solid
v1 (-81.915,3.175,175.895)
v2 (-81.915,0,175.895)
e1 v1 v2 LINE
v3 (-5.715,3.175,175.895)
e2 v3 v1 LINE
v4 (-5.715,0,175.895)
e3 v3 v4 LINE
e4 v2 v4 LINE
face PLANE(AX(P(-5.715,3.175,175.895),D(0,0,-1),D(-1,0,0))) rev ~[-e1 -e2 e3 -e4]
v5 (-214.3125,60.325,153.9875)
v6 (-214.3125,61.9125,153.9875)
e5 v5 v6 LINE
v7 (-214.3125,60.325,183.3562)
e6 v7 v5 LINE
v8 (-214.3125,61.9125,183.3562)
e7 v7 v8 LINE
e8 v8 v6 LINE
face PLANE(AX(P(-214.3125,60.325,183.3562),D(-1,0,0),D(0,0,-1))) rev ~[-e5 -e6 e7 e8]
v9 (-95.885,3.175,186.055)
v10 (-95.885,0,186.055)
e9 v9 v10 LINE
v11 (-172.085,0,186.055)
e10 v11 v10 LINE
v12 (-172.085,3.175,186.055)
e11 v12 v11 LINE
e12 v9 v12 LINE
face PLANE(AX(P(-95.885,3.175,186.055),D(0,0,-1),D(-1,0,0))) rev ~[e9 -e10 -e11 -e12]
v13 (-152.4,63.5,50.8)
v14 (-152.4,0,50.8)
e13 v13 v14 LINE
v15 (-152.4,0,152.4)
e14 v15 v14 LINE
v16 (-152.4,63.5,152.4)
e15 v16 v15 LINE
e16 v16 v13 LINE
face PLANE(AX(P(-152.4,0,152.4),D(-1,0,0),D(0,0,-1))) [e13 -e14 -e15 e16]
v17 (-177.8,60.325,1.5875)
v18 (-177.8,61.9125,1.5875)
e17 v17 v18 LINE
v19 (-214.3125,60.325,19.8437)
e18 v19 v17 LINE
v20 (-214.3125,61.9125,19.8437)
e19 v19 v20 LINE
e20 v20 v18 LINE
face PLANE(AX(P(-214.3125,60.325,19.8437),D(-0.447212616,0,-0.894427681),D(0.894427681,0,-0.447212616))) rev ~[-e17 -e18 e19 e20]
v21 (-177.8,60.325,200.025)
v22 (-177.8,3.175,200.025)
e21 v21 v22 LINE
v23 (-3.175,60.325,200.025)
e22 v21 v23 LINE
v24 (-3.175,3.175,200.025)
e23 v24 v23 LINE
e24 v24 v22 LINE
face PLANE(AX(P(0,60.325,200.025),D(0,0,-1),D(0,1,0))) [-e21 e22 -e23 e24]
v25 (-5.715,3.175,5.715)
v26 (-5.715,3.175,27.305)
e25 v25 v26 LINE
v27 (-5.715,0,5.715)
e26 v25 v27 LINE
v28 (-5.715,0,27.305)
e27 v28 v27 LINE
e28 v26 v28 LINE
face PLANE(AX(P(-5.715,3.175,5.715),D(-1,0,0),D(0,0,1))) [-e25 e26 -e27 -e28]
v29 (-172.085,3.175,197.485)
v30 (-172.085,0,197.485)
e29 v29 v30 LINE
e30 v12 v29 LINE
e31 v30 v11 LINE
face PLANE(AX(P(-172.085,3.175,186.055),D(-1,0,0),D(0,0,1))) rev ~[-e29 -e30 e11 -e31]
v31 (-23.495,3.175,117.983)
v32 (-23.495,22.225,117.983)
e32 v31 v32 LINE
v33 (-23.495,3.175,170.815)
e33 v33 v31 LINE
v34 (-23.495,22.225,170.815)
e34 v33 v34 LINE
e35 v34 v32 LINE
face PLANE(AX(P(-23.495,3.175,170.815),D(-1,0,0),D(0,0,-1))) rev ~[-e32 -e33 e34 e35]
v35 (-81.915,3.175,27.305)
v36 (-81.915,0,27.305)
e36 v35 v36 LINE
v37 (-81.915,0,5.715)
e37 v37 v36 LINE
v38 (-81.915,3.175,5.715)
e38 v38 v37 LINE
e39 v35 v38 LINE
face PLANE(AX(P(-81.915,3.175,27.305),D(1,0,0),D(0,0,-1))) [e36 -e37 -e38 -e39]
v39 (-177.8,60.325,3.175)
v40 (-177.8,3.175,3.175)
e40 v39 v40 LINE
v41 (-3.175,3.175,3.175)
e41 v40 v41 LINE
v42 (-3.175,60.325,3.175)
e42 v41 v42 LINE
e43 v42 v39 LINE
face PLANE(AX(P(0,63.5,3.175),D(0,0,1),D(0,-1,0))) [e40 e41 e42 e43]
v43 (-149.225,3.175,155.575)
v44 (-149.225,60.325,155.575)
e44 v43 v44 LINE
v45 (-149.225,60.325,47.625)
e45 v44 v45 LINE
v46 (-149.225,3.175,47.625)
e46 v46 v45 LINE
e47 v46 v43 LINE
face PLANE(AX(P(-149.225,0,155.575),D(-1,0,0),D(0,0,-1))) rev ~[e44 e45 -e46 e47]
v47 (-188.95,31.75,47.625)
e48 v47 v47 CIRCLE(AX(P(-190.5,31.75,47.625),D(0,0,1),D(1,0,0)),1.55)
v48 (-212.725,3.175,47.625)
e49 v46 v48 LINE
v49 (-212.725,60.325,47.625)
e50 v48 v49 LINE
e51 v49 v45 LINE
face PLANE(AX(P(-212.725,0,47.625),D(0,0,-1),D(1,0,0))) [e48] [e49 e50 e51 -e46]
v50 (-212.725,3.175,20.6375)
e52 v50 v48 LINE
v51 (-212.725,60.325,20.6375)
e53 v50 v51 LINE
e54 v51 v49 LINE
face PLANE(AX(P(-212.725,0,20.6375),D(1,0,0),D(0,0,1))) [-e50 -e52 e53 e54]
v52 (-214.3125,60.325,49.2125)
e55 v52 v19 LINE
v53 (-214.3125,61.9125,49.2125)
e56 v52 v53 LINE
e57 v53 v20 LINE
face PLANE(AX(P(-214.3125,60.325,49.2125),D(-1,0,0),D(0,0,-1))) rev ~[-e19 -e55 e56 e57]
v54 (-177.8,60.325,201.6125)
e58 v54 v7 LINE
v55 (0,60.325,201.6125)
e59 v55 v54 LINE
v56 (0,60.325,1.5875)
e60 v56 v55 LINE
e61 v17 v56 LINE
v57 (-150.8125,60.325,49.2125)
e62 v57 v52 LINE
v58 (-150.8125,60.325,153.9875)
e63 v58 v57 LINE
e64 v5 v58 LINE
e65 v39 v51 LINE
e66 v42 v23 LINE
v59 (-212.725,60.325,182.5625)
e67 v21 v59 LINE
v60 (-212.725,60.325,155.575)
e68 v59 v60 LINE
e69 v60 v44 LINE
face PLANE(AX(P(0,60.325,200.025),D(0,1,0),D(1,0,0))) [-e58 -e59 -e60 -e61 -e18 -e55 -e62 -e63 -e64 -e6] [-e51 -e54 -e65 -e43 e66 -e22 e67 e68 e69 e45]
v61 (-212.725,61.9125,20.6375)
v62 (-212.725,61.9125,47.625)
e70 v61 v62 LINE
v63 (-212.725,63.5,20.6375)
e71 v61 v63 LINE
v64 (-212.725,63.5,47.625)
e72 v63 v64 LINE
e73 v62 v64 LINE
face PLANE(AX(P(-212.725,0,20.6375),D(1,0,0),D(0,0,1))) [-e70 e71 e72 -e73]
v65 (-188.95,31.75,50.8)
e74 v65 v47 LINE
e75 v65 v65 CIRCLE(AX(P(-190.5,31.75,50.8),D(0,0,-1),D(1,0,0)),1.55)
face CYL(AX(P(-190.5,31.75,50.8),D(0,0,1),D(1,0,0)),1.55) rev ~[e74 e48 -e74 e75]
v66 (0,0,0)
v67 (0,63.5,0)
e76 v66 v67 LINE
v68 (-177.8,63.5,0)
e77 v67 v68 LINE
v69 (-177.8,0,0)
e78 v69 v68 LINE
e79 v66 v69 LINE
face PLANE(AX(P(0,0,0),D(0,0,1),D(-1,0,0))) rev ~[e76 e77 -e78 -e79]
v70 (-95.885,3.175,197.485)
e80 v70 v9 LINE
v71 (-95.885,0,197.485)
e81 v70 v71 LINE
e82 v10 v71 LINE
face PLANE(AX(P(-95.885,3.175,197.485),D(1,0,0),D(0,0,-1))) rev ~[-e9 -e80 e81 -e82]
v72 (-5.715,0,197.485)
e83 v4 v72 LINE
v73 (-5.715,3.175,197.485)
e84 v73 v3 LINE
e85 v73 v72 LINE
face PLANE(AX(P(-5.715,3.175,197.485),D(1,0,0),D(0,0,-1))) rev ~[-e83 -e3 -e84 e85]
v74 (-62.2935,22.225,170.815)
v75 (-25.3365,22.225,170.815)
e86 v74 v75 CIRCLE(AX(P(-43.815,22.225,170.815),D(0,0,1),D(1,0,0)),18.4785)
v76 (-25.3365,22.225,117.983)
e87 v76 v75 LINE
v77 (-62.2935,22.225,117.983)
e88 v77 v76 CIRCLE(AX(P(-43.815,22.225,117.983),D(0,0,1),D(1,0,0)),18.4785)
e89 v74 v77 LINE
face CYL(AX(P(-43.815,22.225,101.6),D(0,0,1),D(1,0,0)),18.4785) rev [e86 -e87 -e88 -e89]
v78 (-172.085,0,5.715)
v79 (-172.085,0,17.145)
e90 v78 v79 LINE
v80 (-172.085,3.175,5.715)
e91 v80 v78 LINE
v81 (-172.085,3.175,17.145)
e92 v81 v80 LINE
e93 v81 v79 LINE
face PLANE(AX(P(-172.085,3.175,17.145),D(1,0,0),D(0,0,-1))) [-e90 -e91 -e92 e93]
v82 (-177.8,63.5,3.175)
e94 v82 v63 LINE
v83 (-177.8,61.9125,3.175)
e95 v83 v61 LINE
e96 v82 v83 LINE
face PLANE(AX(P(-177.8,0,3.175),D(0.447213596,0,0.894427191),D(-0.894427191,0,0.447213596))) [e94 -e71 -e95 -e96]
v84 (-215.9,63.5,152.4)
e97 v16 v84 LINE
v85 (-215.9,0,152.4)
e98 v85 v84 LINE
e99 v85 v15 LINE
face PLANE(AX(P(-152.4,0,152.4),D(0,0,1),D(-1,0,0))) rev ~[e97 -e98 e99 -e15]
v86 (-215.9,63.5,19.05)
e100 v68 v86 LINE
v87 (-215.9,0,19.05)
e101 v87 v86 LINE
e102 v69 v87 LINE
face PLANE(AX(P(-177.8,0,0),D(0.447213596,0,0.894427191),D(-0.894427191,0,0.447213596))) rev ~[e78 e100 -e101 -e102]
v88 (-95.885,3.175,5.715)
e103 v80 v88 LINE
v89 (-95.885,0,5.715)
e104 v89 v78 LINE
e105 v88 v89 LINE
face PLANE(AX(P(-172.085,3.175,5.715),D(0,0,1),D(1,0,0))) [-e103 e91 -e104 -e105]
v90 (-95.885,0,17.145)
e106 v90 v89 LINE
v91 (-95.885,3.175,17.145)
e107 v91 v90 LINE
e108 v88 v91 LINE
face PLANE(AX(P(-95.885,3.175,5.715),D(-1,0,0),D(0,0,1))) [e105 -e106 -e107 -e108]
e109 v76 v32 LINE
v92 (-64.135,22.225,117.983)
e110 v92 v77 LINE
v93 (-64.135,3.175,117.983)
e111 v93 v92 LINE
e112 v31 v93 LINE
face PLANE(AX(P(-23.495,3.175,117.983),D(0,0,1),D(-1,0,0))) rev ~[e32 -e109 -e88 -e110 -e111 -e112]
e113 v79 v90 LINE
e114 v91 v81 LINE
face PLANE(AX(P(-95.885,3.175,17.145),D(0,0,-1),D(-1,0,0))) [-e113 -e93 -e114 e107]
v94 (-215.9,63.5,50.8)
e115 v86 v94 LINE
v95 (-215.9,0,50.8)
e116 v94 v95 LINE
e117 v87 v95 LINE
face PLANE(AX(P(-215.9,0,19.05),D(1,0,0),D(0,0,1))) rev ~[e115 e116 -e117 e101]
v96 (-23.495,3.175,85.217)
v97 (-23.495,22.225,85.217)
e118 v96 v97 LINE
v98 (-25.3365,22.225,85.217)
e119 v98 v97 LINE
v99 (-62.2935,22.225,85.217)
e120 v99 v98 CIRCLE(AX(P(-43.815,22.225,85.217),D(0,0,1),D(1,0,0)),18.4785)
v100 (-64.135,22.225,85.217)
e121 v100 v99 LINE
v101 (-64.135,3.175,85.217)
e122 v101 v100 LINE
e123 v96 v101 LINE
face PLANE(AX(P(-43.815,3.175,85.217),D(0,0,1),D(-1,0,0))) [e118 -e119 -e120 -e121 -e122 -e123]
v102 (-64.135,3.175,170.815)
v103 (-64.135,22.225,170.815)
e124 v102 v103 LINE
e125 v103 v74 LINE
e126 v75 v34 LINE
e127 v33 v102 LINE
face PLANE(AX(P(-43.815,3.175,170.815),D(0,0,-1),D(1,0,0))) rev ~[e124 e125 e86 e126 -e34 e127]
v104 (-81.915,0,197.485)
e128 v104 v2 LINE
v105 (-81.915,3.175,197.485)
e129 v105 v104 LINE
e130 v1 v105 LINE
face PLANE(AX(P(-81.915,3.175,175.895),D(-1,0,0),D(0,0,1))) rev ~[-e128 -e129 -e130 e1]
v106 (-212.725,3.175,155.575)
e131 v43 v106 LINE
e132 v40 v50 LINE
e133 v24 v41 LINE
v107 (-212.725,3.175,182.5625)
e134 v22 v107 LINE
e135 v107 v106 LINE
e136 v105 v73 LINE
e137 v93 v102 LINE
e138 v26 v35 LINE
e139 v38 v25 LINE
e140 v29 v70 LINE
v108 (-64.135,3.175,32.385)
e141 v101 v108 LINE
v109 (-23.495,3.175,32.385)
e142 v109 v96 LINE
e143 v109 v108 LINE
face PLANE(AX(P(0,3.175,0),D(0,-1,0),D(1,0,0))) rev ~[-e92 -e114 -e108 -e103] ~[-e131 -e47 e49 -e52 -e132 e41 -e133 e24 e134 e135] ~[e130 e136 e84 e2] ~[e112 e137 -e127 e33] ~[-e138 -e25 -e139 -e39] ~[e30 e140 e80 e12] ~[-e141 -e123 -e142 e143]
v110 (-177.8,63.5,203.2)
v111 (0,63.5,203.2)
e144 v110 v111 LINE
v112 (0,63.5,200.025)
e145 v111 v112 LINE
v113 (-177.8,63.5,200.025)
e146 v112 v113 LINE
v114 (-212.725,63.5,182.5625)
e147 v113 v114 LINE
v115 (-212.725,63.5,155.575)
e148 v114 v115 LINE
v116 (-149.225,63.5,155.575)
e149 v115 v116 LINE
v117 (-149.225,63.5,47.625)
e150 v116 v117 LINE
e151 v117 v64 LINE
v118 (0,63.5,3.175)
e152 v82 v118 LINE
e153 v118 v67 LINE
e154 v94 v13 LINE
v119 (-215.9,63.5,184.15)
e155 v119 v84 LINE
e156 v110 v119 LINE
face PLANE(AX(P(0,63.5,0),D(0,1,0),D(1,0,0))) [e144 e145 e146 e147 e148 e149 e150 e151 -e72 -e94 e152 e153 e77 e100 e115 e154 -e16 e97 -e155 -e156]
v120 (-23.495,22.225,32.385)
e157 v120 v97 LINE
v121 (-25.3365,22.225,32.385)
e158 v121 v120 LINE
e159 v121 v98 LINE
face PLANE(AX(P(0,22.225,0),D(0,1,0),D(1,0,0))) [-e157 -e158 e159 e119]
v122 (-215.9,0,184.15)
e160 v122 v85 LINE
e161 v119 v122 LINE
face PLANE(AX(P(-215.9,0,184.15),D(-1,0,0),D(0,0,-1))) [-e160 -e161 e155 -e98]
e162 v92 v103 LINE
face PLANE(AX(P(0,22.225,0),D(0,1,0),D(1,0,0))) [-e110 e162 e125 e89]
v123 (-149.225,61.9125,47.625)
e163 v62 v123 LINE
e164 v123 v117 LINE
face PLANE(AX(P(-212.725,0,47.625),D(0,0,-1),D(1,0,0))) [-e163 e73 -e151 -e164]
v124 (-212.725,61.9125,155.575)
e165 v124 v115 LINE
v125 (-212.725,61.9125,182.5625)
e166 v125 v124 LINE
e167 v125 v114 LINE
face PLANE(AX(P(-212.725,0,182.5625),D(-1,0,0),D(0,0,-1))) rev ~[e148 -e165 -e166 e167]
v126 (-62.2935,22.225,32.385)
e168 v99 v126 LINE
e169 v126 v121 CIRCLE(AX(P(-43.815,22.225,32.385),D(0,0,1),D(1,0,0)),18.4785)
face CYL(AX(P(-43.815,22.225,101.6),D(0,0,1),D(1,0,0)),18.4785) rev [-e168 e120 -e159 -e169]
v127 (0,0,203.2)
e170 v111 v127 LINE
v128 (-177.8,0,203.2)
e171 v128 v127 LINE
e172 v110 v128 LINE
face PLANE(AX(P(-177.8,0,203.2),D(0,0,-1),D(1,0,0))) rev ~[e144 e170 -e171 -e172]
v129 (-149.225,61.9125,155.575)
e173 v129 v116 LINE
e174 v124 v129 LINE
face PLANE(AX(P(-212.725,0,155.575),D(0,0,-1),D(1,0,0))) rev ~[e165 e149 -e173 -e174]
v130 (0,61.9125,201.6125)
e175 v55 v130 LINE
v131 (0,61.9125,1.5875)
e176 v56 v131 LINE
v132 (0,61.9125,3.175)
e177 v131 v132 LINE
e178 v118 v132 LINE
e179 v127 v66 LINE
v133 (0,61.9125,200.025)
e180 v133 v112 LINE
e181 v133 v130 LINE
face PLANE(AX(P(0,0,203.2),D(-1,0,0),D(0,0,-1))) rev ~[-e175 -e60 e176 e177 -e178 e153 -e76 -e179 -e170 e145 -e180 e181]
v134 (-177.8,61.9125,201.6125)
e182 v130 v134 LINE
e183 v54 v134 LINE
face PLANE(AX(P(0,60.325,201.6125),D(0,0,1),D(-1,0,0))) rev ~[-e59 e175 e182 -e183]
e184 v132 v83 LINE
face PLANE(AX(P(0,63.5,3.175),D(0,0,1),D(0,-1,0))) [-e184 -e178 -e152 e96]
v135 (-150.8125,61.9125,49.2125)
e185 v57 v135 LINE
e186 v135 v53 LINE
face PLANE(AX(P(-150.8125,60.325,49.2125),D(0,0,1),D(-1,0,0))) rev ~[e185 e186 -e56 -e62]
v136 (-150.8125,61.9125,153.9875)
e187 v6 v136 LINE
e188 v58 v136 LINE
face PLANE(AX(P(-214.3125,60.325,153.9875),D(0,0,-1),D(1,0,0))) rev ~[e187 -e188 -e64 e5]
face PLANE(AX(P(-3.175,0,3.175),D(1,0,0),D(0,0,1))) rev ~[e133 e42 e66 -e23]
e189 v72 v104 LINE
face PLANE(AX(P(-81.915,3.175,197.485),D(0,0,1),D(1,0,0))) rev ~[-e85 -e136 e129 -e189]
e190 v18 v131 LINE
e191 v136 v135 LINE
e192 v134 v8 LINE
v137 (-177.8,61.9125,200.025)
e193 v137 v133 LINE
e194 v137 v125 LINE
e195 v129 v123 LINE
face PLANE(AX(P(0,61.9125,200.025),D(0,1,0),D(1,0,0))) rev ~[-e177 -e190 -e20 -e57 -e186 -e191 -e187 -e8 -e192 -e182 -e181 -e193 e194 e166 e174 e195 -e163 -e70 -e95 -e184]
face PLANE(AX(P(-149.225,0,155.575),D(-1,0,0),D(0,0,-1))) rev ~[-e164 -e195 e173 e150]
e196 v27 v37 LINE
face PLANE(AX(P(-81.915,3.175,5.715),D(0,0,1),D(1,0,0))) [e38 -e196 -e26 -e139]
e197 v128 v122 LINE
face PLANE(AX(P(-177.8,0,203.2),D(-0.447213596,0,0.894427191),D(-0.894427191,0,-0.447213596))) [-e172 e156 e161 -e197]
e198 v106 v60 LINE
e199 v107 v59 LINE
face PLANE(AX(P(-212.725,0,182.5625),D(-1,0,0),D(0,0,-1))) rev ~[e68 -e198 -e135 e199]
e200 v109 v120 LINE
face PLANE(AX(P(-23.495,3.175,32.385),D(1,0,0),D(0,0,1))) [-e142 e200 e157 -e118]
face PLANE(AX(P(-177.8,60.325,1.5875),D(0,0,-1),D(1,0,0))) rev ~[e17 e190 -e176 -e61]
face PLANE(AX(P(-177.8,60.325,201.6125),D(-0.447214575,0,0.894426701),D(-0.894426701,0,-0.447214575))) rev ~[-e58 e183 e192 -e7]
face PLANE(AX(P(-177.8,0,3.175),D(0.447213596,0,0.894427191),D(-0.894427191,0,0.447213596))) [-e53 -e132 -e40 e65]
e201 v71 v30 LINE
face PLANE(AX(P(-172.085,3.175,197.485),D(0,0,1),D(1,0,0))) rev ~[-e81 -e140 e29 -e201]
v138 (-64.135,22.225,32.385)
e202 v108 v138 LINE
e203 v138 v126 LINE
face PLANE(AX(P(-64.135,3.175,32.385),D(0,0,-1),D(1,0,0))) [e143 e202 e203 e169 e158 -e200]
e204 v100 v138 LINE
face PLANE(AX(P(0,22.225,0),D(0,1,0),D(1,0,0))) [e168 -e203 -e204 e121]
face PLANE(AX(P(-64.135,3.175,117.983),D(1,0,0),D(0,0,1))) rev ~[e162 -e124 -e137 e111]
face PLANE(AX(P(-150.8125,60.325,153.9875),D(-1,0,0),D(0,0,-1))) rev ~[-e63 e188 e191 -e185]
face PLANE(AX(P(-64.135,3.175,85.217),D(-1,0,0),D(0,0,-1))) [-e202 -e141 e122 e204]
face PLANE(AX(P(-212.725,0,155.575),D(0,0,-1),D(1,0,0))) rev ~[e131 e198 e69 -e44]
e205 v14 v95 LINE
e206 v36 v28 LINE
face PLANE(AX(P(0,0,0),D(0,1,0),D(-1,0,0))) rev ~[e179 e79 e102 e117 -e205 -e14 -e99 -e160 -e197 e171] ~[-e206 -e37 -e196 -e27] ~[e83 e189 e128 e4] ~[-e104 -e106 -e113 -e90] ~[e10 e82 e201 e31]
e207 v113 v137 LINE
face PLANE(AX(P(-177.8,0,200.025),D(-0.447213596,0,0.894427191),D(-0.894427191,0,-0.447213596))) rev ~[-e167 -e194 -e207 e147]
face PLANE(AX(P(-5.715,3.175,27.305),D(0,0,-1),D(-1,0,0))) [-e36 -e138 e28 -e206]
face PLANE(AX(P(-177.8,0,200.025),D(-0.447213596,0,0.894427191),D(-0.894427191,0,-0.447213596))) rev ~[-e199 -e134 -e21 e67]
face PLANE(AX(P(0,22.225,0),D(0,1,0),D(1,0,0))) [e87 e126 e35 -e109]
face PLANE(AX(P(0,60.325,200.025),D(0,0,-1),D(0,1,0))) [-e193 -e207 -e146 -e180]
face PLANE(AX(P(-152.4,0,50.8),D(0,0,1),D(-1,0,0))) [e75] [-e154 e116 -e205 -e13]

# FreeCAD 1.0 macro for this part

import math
import FreeCAD as App
import Part
import Sketcher
from FreeCAD import Vector
Q = App.Units.Quantity

doc = App.newDocument("Part")
body = doc.addObject("PartDesign::Body", "Body")

sketch1 = body.newObject("Sketcher::SketchObject", "Sketch")
sketch1.AttachmentSupport = (doc.getObject("XZ_Plane"), [""])
sketch1.MapMode = "FlatFace"
sketch1.addGeometry(Part.LineSegment(Vector(0, 203.2, 0), Vector(0, 0, 0)), False)
sketch1.addGeometry(Part.LineSegment(Vector(0, 0, 0), Vector(-177.8, 0, 0)), False)
sketch1.addGeometry(Part.LineSegment(Vector(-177.8, 0, 0), Vector(-177.8, 203.2, 0)), False)
sketch1.addGeometry(Part.LineSegment(Vector(-177.8, 203.2, 0), Vector(0, 203.2, 0)), False)
sketch1.addConstraint(Sketcher.Constraint("Coincident", 0, 2, 1, 1))
sketch1.addConstraint(Sketcher.Constraint("Coincident", 1, 2, 2, 1))
sketch1.addConstraint(Sketcher.Constraint("Coincident", 2, 2, 3, 1))
sketch1.addConstraint(Sketcher.Constraint("Coincident", 3, 2, 0, 1))
sketch1.addConstraint(Sketcher.Constraint("Vertical", 0))
sketch1.addConstraint(Sketcher.Constraint("Horizontal", 1))
sketch1.addConstraint(Sketcher.Constraint("Vertical", 2))
sketch1.addConstraint(Sketcher.Constraint("Horizontal", 3))
sketch1.addConstraint(Sketcher.Constraint("Coincident", 0, 2, -1, 1))
sketch1.addConstraint(Sketcher.Constraint("DistanceX", 1, 2, 1, 1, Q("7 in")))
sketch1.addConstraint(Sketcher.Constraint("DistanceY", 0, 2, 0, 1, Q("8 in")))
pad1 = body.newObject("PartDesign::Pad", "Pad")
pad1.Profile = sketch1
pad1.Length = Q("0.125 in")
pad1.Reversed = True

sketch2 = body.newObject("Sketcher::SketchObject", "Sketch001")
sketch2.AttachmentSupport = (doc.getObject("XZ_Plane"), [""])
sketch2.MapMode = "FlatFace"
sketch2.addGeometry(Part.LineSegment(Vector(0, 0, 0), Vector(-177.8, 0, 0)), False)
sketch2.addGeometry(Part.LineSegment(Vector(-177.8, 0, 0), Vector(-177.8, 50.8, 0)), False)
sketch2.addGeometry(Part.LineSegment(Vector(-177.8, 50.8, 0), Vector(-152.4, 50.8, 0)), False)
sketch2.addGeometry(Part.LineSegment(Vector(-152.4, 50.8, 0), Vector(-152.4, 152.4, 0)), False)
sketch2.addGeometry(Part.LineSegment(Vector(-152.4, 152.4, 0), Vector(-177.8, 152.4, 0)), False)
sketch2.addGeometry(Part.LineSegment(Vector(-177.8, 152.4, 0), Vector(-177.8, 203.2, 0)), False)
sketch2.addGeometry(Part.LineSegment(Vector(-177.8, 203.2, 0), Vector(0, 203.2, 0)), False)
sketch2.addGeometry(Part.LineSegment(Vector(0, 203.2, 0), Vector(0, 0, 0)), False)
sketch2.addGeometry(Part.LineSegment(Vector(-174.625, 47.625, 0), Vector(-174.625, 3.175, 0)), False)
sketch2.addGeometry(Part.LineSegment(Vector(-174.625, 3.175, 0), Vector(-3.175, 3.175, 0)), False)
sketch2.addGeometry(Part.LineSegment(Vector(-3.175, 3.175, 0), Vector(-3.175, 200.025, 0)), False)
sketch2.addGeometry(Part.LineSegment(Vector(-3.175, 200.025, 0), Vector(-174.625, 200.025, 0)), False)
sketch2.addGeometry(Part.LineSegment(Vector(-174.625, 200.025, 0), Vector(-174.625, 155.575, 0)), False)
sketch2.addGeometry(Part.LineSegment(Vector(-174.625, 155.575, 0), Vector(-149.225, 155.575, 0)), False)
sketch2.addGeometry(Part.LineSegment(Vector(-149.225, 155.575, 0), Vector(-149.225, 47.625, 0)), False)
sketch2.addGeometry(Part.LineSegment(Vector(-149.225, 47.625, 0), Vector(-174.625, 47.625, 0)), False)
sketch2.addConstraint(Sketcher.Constraint("Coincident", 0, 2, 1, 1))
sketch2.addConstraint(Sketcher.Constraint("Coincident", 1, 2, 2, 1))
sketch2.addConstraint(Sketcher.Constraint("Coincident", 2, 2, 3, 1))
sketch2.addConstraint(Sketcher.Constraint("Coincident", 3, 2, 4, 1))
sketch2.addConstraint(Sketcher.Constraint("Coincident", 4, 2, 5, 1))
sketch2.addConstraint(Sketcher.Constraint("Coincident", 5, 2, 6, 1))
sketch2.addConstraint(Sketcher.Constraint("Coincident", 6, 2, 7, 1))
sketch2.addConstraint(Sketcher.Constraint("Coincident", 7, 2, 0, 1))
sketch2.addConstraint(Sketcher.Constraint("Coincident", 8, 2, 9, 1))
sketch2.addConstraint(Sketcher.Constraint("Coincident", 9, 2, 10, 1))
sketch2.addConstraint(Sketcher.Constraint("Coincident", 10, 2, 11, 1))
sketch2.addConstraint(Sketcher.Constraint("Coincident", 11, 2, 12, 1))
sketch2.addConstraint(Sketcher.Constraint("Coincident", 12, 2, 13, 1))
sketch2.addConstraint(Sketcher.Constraint("Coincident", 13, 2, 14, 1))
sketch2.addConstraint(Sketcher.Constraint("Coincident", 14, 2, 15, 1))
sketch2.addConstraint(Sketcher.Constraint("Coincident", 15, 2, 8, 1))
sketch2.addConstraint(Sketcher.Constraint("Horizontal", 0))
sketch2.addConstraint(Sketcher.Constraint("Vertical", 1))
sketch2.addConstraint(Sketcher.Constraint("Horizontal", 2))
sketch2.addConstraint(Sketcher.Constraint("Vertical", 3))
sketch2.addConstraint(Sketcher.Constraint("Horizontal", 4))
sketch2.addConstraint(Sketcher.Constraint("Vertical", 5))
sketch2.addConstraint(Sketcher.Constraint("Horizontal", 6))
sketch2.addConstraint(Sketcher.Constraint("Vertical", 7))
sketch2.addConstraint(Sketcher.Constraint("Vertical", 8))
sketch2.addConstraint(Sketcher.Constraint("Horizontal", 9))
sketch2.addConstraint(Sketcher.Constraint("Vertical", 10))
sketch2.addConstraint(Sketcher.Constraint("Horizontal", 11))
sketch2.addConstraint(Sketcher.Constraint("Vertical", 12))
sketch2.addConstraint(Sketcher.Constraint("Horizontal", 13))
sketch2.addConstraint(Sketcher.Constraint("Vertical", 14))
sketch2.addConstraint(Sketcher.Constraint("Horizontal", 15))
sketch2.addConstraint(Sketcher.Constraint("Coincident", 7, 2, -1, 1))
sketch2.addConstraint(Sketcher.Constraint("Vertical", 1, 2, 4, 2))
sketch2.addConstraint(Sketcher.Constraint("Vertical", 8, 2, 11, 2))
sketch2.addConstraint(Sketcher.Constraint("Equal", 4, 13))
sketch2.addConstraint(Sketcher.Constraint("Equal", 1, 5))
sketch2.addConstraint(Sketcher.Constraint("Equal", 8, 12))
sketch2.addConstraint(Sketcher.Constraint("DistanceX", 2, 1, 2, 2, Q("1 in")))
sketch2.addConstraint(Sketcher.Constraint("DistanceY", 3, 1, 3, 2, Q("4 in")))
sketch2.addConstraint(Sketcher.Constraint("DistanceX", 0, 2, 0, 1, Q("7 in")))
sketch2.addConstraint(Sketcher.Constraint("DistanceY", 1, 1, 1, 2, Q("2 in")))
sketch2.addConstraint(Sketcher.Constraint("DistanceY", -1, 1, 8, 2, Q("0.125 in")))
sketch2.addConstraint(Sketcher.Constraint("DistanceX", 9, 2, -1, 1, Q("0.125 in")))
sketch2.addConstraint(Sketcher.Constraint("DistanceX", 0, 2, 8, 2, Q("0.125 in")))
sketch2.addConstraint(Sketcher.Constraint("DistanceY", 10, 2, 6, 2, Q("0.125 in")))
sketch2.addConstraint(Sketcher.Constraint("DistanceY", 4, 2, 12, 2, Q("0.125 in")))
pad2 = body.newObject("PartDesign::Pad", "Pad001")
pad2.Profile = sketch2
pad2.Length = Q("2.5 in")
pad2.Reversed = True

sketch3 = body.newObject("Sketcher::SketchObject", "Sketch002")
sketch3.AttachmentSupport = (doc.getObject("XZ_Plane"), [""])
sketch3.MapMode = "FlatFace"
sketch3.AttachmentOffset = App.Placement(Vector(0, 0, -0.125 * 25.4), App.Rotation())
sketch3.addGeometry(Part.LineSegment(Vector(-152.4, 50.8, 0), Vector(-177.8, 50.8, 0)), False)
sketch3.addGeometry(Part.LineSegment(Vector(-177.8, 50.8, 0), Vector(-177.8, 152.4, 0)), False)
sketch3.addGeometry(Part.LineSegment(Vector(-177.8, 152.4, 0), Vector(-152.4, 152.4, 0)), False)
sketch3.addGeometry(Part.LineSegment(Vector(-152.4, 152.4, 0), Vector(-152.4, 50.8, 0)), False)
sketch3.addConstraint(Sketcher.Constraint("Coincident", 0, 2, 1, 1))
sketch3.addConstraint(Sketcher.Constraint("Coincident", 1, 2, 2, 1))
sketch3.addConstraint(Sketcher.Constraint("Coincident", 2, 2, 3, 1))
sketch3.addConstraint(Sketcher.Constraint("Coincident", 3, 2, 0, 1))
sketch3.addConstraint(Sketcher.Constraint("Horizontal", 0))
sketch3.addConstraint(Sketcher.Constraint("Vertical", 1))
sketch3.addConstraint(Sketcher.Constraint("Horizontal", 2))
sketch3.addConstraint(Sketcher.Constraint("Vertical", 3))
sketch3.addConstraint(Sketcher.Constraint("DistanceX", 0, 2, 0, 1, Q("1 in")))
sketch3.addConstraint(Sketcher.Constraint("DistanceY", 1, 1, 1, 2, Q("4 in")))
sketch3.addConstraint(Sketcher.Constraint("DistanceX", 0, 2, -1, 1, Q("7 in")))
sketch3.addConstraint(Sketcher.Constraint("DistanceY", -1, 1, 0, 2, Q("2 in")))
pocket1 = body.newObject("PartDesign::Pocket", "Pocket")
pocket1.Profile = sketch3
pocket1.Type = "ThroughAll"
pocket1.Reversed = True

sketch4 = body.newObject("Sketcher::SketchObject", "Sketch003")
sketch4.AttachmentSupport = (doc.getObject("XZ_Plane"), [""])
sketch4.MapMode = "FlatFace"
sketch4.AttachmentOffset = App.Placement(Vector(0, 0, -0.125 * 25.4), App.Rotation())
sketch4.addGeometry(Part.LineSegment(Vector(-172.085, 186.055, 0), Vector(-172.085, 197.485, 0)), False)
sketch4.addGeometry(Part.LineSegment(Vector(-172.085, 197.485, 0), Vector(-95.885, 197.485, 0)), False)
sketch4.addGeometry(Part.LineSegment(Vector(-95.885, 197.485, 0), Vector(-95.885, 186.055, 0)), False)
sketch4.addGeometry(Part.LineSegment(Vector(-95.885, 186.055, 0), Vector(-172.085, 186.055, 0)), False)
sketch4.addGeometry(Part.LineSegment(Vector(-81.915, 175.895, 0), Vector(-81.915, 197.485, 0)), False)
sketch4.addGeometry(Part.LineSegment(Vector(-81.915, 197.485, 0), Vector(-5.715, 197.485, 0)), False)
sketch4.addGeometry(Part.LineSegment(Vector(-5.715, 197.485, 0), Vector(-5.715, 175.895, 0)), False)
sketch4.addGeometry(Part.LineSegment(Vector(-5.715, 175.895, 0), Vector(-81.915, 175.895, 0)), False)
sketch4.addGeometry(Part.LineSegment(Vector(-95.885, 5.715, 0), Vector(-172.085, 5.715, 0)), False)
sketch4.addGeometry(Part.LineSegment(Vector(-172.085, 5.715, 0), Vector(-172.085, 17.145, 0)), False)
sketch4.addGeometry(Part.LineSegment(Vector(-172.085, 17.145, 0), Vector(-95.885, 17.145, 0)), False)
sketch4.addGeometry(Part.LineSegment(Vector(-95.885, 17.145, 0), Vector(-95.885, 5.715, 0)), False)
sketch4.addGeometry(Part.LineSegment(Vector(-5.715, 5.715, 0), Vector(-81.915, 5.715, 0)), False)
sketch4.addGeometry(Part.LineSegment(Vector(-81.915, 5.715, 0), Vector(-81.915, 27.305, 0)), False)
sketch4.addGeometry(Part.LineSegment(Vector(-81.915, 27.305, 0), Vector(-5.715, 27.305, 0)), False)
sketch4.addGeometry(Part.LineSegment(Vector(-5.715, 27.305, 0), Vector(-5.715, 5.715, 0)), False)
sketch4.addConstraint(Sketcher.Constraint("Coincident", 0, 2, 1, 1))
sketch4.addConstraint(Sketcher.Constraint("Coincident", 1, 2, 2, 1))
sketch4.addConstraint(Sketcher.Constraint("Coincident", 2, 2, 3, 1))
sketch4.addConstraint(Sketcher.Constraint("Coincident", 3, 2, 0, 1))
sketch4.addConstraint(Sketcher.Constraint("Coincident", 4, 2, 5, 1))
sketch4.addConstraint(Sketcher.Constraint("Coincident", 5, 2, 6, 1))
sketch4.addConstraint(Sketcher.Constraint("Coincident", 6, 2, 7, 1))
sketch4.addConstraint(Sketcher.Constraint("Coincident", 7, 2, 4, 1))
sketch4.addConstraint(Sketcher.Constraint("Coincident", 8, 2, 9, 1))
sketch4.addConstraint(Sketcher.Constraint("Coincident", 9, 2, 10, 1))
sketch4.addConstraint(Sketcher.Constraint("Coincident", 10, 2, 11, 1))
sketch4.addConstraint(Sketcher.Constraint("Coincident", 11, 2, 8, 1))
sketch4.addConstraint(Sketcher.Constraint("Coincident", 12, 2, 13, 1))
sketch4.addConstraint(Sketcher.Constraint("Coincident", 13, 2, 14, 1))
sketch4.addConstraint(Sketcher.Constraint("Coincident", 14, 2, 15, 1))
sketch4.addConstraint(Sketcher.Constraint("Coincident", 15, 2, 12, 1))
sketch4.addConstraint(Sketcher.Constraint("Vertical", 0))
sketch4.addConstraint(Sketcher.Constraint("Horizontal", 1))
sketch4.addConstraint(Sketcher.Constraint("Vertical", 2))
sketch4.addConstraint(Sketcher.Constraint("Horizontal", 3))
sketch4.addConstraint(Sketcher.Constraint("Vertical", 4))
sketch4.addConstraint(Sketcher.Constraint("Horizontal", 5))
sketch4.addConstraint(Sketcher.Constraint("Vertical", 6))
sketch4.addConstraint(Sketcher.Constraint("Horizontal", 7))
sketch4.addConstraint(Sketcher.Constraint("Horizontal", 8))
sketch4.addConstraint(Sketcher.Constraint("Vertical", 9))
sketch4.addConstraint(Sketcher.Constraint("Horizontal", 10))
sketch4.addConstraint(Sketcher.Constraint("Vertical", 11))
sketch4.addConstraint(Sketcher.Constraint("Horizontal", 12))
sketch4.addConstraint(Sketcher.Constraint("Vertical", 13))
sketch4.addConstraint(Sketcher.Constraint("Horizontal", 14))
sketch4.addConstraint(Sketcher.Constraint("Vertical", 15))
sketch4.addConstraint(Sketcher.Constraint("Horizontal", 1, 2, 4, 2))
sketch4.addConstraint(Sketcher.Constraint("Horizontal", 11, 2, 12, 2))
sketch4.addConstraint(Sketcher.Constraint("Vertical", 3, 2, 8, 2))
sketch4.addConstraint(Sketcher.Constraint("Vertical", 2, 2, 10, 2))
sketch4.addConstraint(Sketcher.Constraint("Vertical", 7, 2, 12, 2))
sketch4.addConstraint(Sketcher.Constraint("Vertical", 6, 2, 14, 2))
sketch4.addConstraint(Sketcher.Constraint("Equal", 3, 5))
sketch4.addConstraint(Sketcher.Constraint("Equal", 2, 9))
sketch4.addConstraint(Sketcher.Constraint("Equal", 6, 13))
sketch4.addConstraint(Sketcher.Constraint("DistanceX", 1, 1, 1, 2, Q("3 in")))
sketch4.addConstraint(Sketcher.Constraint("DistanceY", 0, 1, 0, 2, Q("0.45 in")))
sketch4.addConstraint(Sketcher.Constraint("DistanceY", 4, 1, 4, 2, Q("0.85 in")))
sketch4.addConstraint(Sketcher.Constraint("DistanceY", 8, 2, 3, 2, Q("7.1 in")))
sketch4.addConstraint(Sketcher.Constraint("DistanceX", 1, 2, 4, 2, Q("0.55 in")))
sketch4.addConstraint(Sketcher.Constraint("DistanceX", 0, 2, -1, 1, Q("6.775 in")))
sketch4.addConstraint(Sketcher.Constraint("DistanceY", -1, 1, 0, 2, Q("7.775 in")))
pocket2 = body.newObject("PartDesign::Pocket", "Pocket001")
pocket2.Profile = sketch4
pocket2.Type = "UpToFirst"
pocket2.Reversed = True

sketch5 = body.newObject("Sketcher::SketchObject", "Sketch004")
sketch5.AttachmentSupport = (doc.getObject("XZ_Plane"), [""])
sketch5.MapMode = "FlatFace"
sketch5.AttachmentOffset = App.Placement(Vector(0, 0, -2.5 * 25.4), App.Rotation())
sketch5.addGeometry(Part.LineSegment(Vector(-177.8, 47.625, 0), Vector(-174.625, 47.625, 0)), False)
sketch5.addGeometry(Part.LineSegment(Vector(-174.625, 47.625, 0), Vector(-174.625, 3.175, 0)), False)
sketch5.addGeometry(Part.LineSegment(Vector(-174.625, 3.175, 0), Vector(-177.8, 3.175, 0)), False)
sketch5.addGeometry(Part.LineSegment(Vector(-177.8, 3.175, 0), Vector(-177.8, 47.625, 0)), False)
sketch5.addGeometry(Part.LineSegment(Vector(-174.625, 155.575, 0), Vector(-177.8, 155.575, 0)), False)
sketch5.addGeometry(Part.LineSegment(Vector(-177.8, 155.575, 0), Vector(-177.8, 200.025, 0)), False)
sketch5.addGeometry(Part.LineSegment(Vector(-177.8, 200.025, 0), Vector(-174.625, 200.025, 0)), False)
sketch5.addGeometry(Part.LineSegment(Vector(-174.625, 200.025, 0), Vector(-174.625, 155.575, 0)), False)
sketch5.addConstraint(Sketcher.Constraint("Coincident", 0, 2, 1, 1))
sketch5.addConstraint(Sketcher.Constraint("Coincident", 1, 2, 2, 1))
sketch5.addConstraint(Sketcher.Constraint("Coincident", 2, 2, 3, 1))
sketch5.addConstraint(Sketcher.Constraint("Coincident", 3, 2, 0, 1))
sketch5.addConstraint(Sketcher.Constraint("Coincident", 4, 2, 5, 1))
sketch5.addConstraint(Sketcher.Constraint("Coincident", 5, 2, 6, 1))
sketch5.addConstraint(Sketcher.Constraint("Coincident", 6, 2, 7, 1))
sketch5.addConstraint(Sketcher.Constraint("Coincident", 7, 2, 4, 1))
sketch5.addConstraint(Sketcher.Constraint("Horizontal", 0))
sketch5.addConstraint(Sketcher.Constraint("Vertical", 1))
sketch5.addConstraint(Sketcher.Constraint("Horizontal", 2))
sketch5.addConstraint(Sketcher.Constraint("Vertical", 3))
sketch5.addConstraint(Sketcher.Constraint("Horizontal", 4))
sketch5.addConstraint(Sketcher.Constraint("Vertical", 5))
sketch5.addConstraint(Sketcher.Constraint("Horizontal", 6))
sketch5.addConstraint(Sketcher.Constraint("Vertical", 7))
sketch5.addConstraint(Sketcher.Constraint("Vertical", 3, 2, 4, 2))
sketch5.addConstraint(Sketcher.Constraint("Vertical", 1, 2, 6, 2))
sketch5.addConstraint(Sketcher.Constraint("Equal", 3, 5))
sketch5.addConstraint(Sketcher.Constraint("DistanceX", 2, 2, -1, 1, Q("7 in")))
sketch5.addConstraint(Sketcher.Constraint("DistanceY", 2, 2, 4, 2, Q("6 in")))
sketch5.addConstraint(Sketcher.Constraint("DistanceY", 1, 2, 1, 1, Q("1.75 in")))
sketch5.addConstraint(Sketcher.Constraint("DistanceX", 0, 1, 0, 2, Q("0.125 in")))
sketch5.addConstraint(Sketcher.Constraint("DistanceY", -1, 1, 0, 2, Q("1.875 in")))
pocket3 = body.newObject("PartDesign::Pocket", "Pocket002")
pocket3.Profile = sketch5
pocket3.Length = Q("2.375 in")
pocket3.Reversed = True

sketch6 = body.newObject("Sketcher::SketchObject", "Sketch005")
sketch6.AttachmentSupport = (doc.getObject("XZ_Plane"), [""])
sketch6.MapMode = "FlatFace"
sketch6.addGeometry(Part.LineSegment(Vector(-177.8, 50.8, 0), Vector(-215.9, 50.8, 0)), False)
sketch6.addGeometry(Part.LineSegment(Vector(-215.9, 50.8, 0), Vector(-215.9, 19.05, 0)), False)
sketch6.addGeometry(Part.LineSegment(Vector(-215.9, 19.05, 0), Vector(-177.8, 0, 0)), False)
sketch6.addGeometry(Part.LineSegment(Vector(-177.8, 0, 0), Vector(-177.8, 50.8, 0)), False)
sketch6.addGeometry(Part.LineSegment(Vector(-215.9, 152.4, 0), Vector(-177.8, 152.4, 0)), False)
sketch6.addGeometry(Part.LineSegment(Vector(-177.8, 152.4, 0), Vector(-177.8, 203.2, 0)), False)
sketch6.addGeometry(Part.LineSegment(Vector(-177.8, 203.2, 0), Vector(-215.9, 184.15, 0)), False)
sketch6.addGeometry(Part.LineSegment(Vector(-215.9, 184.15, 0), Vector(-215.9, 152.4, 0)), False)
sketch6.addConstraint(Sketcher.Constraint("Coincident", 0, 2, 1, 1))
sketch6.addConstraint(Sketcher.Constraint("Coincident", 1, 2, 2, 1))
sketch6.addConstraint(Sketcher.Constraint("Coincident", 2, 2, 3, 1))
sketch6.addConstraint(Sketcher.Constraint("Coincident", 3, 2, 0, 1))
sketch6.addConstraint(Sketcher.Constraint("Coincident", 4, 2, 5, 1))
sketch6.addConstraint(Sketcher.Constraint("Coincident", 5, 2, 6, 1))
sketch6.addConstraint(Sketcher.Constraint("Coincident", 6, 2, 7, 1))
sketch6.addConstraint(Sketcher.Constraint("Coincident", 7, 2, 4, 1))
sketch6.addConstraint(Sketcher.Constraint("Horizontal", 0))
sketch6.addConstraint(Sketcher.Constraint("Vertical", 1))
sketch6.addConstraint(Sketcher.Constraint("Vertical", 3))
sketch6.addConstraint(Sketcher.Constraint("Horizontal", 4))
sketch6.addConstraint(Sketcher.Constraint("Vertical", 5))
sketch6.addConstraint(Sketcher.Constraint("Vertical", 7))
sketch6.addConstraint(Sketcher.Constraint("PointOnObject", 2, 2, -1))
sketch6.addConstraint(Sketcher.Constraint("Vertical", 3, 2, 4, 2))
sketch6.addConstraint(Sketcher.Constraint("Vertical", 1, 2, 6, 2))
sketch6.addConstraint(Sketcher.Constraint("Equal", 3, 5))
sketch6.addConstraint(Sketcher.Constraint("Equal", 1, 7))
sketch6.addConstraint(Sketcher.Constraint("DistanceX", 0, 2, 0, 1, Q("1.5 in")))
sketch6.addConstraint(Sketcher.Constraint("DistanceY", 1, 2, 1, 1, Q("1.25 in")))
sketch6.addConstraint(Sketcher.Constraint("DistanceY", 3, 1, 3, 2, Q("2 in")))
sketch6.addConstraint(Sketcher.Constraint("DistanceX", 2, 2, -1, 1, Q("7 in")))
sketch6.addConstraint(Sketcher.Constraint("DistanceY", -1, 1, 4, 2, Q("6 in")))
pad3 = body.newObject("PartDesign::Pad", "Pad002")
pad3.Profile = sketch6
pad3.Length = Q("0.125 in")
pad3.Reversed = True

sketch7 = body.newObject("Sketcher::SketchObject", "Sketch006")
sketch7.AttachmentSupport = (doc.getObject("XZ_Plane"), [""])
sketch7.MapMode = "FlatFace"
sketch7.addGeometry(Part.LineSegment(Vector(-177.8, 47.625, 0), Vector(-177.8, 50.8, 0)), False)
sketch7.addGeometry(Part.LineSegment(Vector(-177.8, 50.8, 0), Vector(-215.9, 50.8, 0)), False)
sketch7.addGeometry(Part.LineSegment(Vector(-215.9, 50.8, 0), Vector(-215.9, 19.05, 0)), False)
sketch7.addGeometry(Part.LineSegment(Vector(-215.9, 19.05, 0), Vector(-177.8, 0, 0)), False)
sketch7.addGeometry(Part.LineSegment(Vector(-177.8, 0, 0), Vector(-177.8, 3.175, 0)), False)
sketch7.addGeometry(Part.LineSegment(Vector(-177.8, 3.175, 0), Vector(-212.725, 20.6375, 0)), False)
sketch7.addGeometry(Part.LineSegment(Vector(-212.725, 20.6375, 0), Vector(-212.725, 47.625, 0)), False)
sketch7.addGeometry(Part.LineSegment(Vector(-212.725, 47.625, 0), Vector(-177.8, 47.625, 0)), False)
sketch7.addGeometry(Part.LineSegment(Vector(-215.9, 152.4, 0), Vector(-177.8, 152.4, 0)), False)
sketch7.addGeometry(Part.LineSegment(Vector(-177.8, 152.4, 0), Vector(-177.8, 155.575, 0)), False)
sketch7.addGeometry(Part.LineSegment(Vector(-177.8, 155.575, 0), Vector(-212.725, 155.575, 0)), False)
sketch7.addGeometry(Part.LineSegment(Vector(-212.725, 155.575, 0), Vector(-212.725, 182.5625, 0)), False)
sketch7.addGeometry(Part.LineSegment(Vector(-212.725, 182.5625, 0), Vector(-177.8, 200.025, 0)), False)
sketch7.addGeometry(Part.LineSegment(Vector(-177.8, 200.025, 0), Vector(-177.8, 203.2, 0)), False)
sketch7.addGeometry(Part.LineSegment(Vector(-177.8, 203.2, 0), Vector(-215.9, 184.15, 0)), False)
sketch7.addGeometry(Part.LineSegment(Vector(-215.9, 184.15, 0), Vector(-215.9, 152.4, 0)), False)
sketch7.addConstraint(Sketcher.Constraint("Coincident", 0, 2, 1, 1))
sketch7.addConstraint(Sketcher.Constraint("Coincident", 1, 2, 2, 1))
sketch7.addConstraint(Sketcher.Constraint("Coincident", 2, 2, 3, 1))
sketch7.addConstraint(Sketcher.Constraint("Coincident", 3, 2, 4, 1))
sketch7.addConstraint(Sketcher.Constraint("Coincident", 4, 2, 5, 1))
sketch7.addConstraint(Sketcher.Constraint("Coincident", 5, 2, 6, 1))
sketch7.addConstraint(Sketcher.Constraint("Coincident", 6, 2, 7, 1))
sketch7.addConstraint(Sketcher.Constraint("Coincident", 7, 2, 0, 1))
sketch7.addConstraint(Sketcher.Constraint("Coincident", 8, 2, 9, 1))
sketch7.addConstraint(Sketcher.Constraint("Coincident", 9, 2, 10, 1))
sketch7.addConstraint(Sketcher.Constraint("Coincident", 10, 2, 11, 1))
sketch7.addConstraint(Sketcher.Constraint("Coincident", 11, 2, 12, 1))
sketch7.addConstraint(Sketcher.Constraint("Coincident", 12, 2, 13, 1))
sketch7.addConstraint(Sketcher.Constraint("Coincident", 13, 2, 14, 1))
sketch7.addConstraint(Sketcher.Constraint("Coincident", 14, 2, 15, 1))
sketch7.addConstraint(Sketcher.Constraint("Coincident", 15, 2, 8, 1))
sketch7.addConstraint(Sketcher.Constraint("Vertical", 0))
sketch7.addConstraint(Sketcher.Constraint("Horizontal", 1))
sketch7.addConstraint(Sketcher.Constraint("Vertical", 2))
sketch7.addConstraint(Sketcher.Constraint("Vertical", 4))
sketch7.addConstraint(Sketcher.Constraint("Vertical", 6))
sketch7.addConstraint(Sketcher.Constraint("Horizontal", 7))
sketch7.addConstraint(Sketcher.Constraint("Horizontal", 8))
sketch7.addConstraint(Sketcher.Constraint("Vertical", 9))
sketch7.addConstraint(Sketcher.Constraint("Horizontal", 10))
sketch7.addConstraint(Sketcher.Constraint("Vertical", 11))
sketch7.addConstraint(Sketcher.Constraint("Vertical", 13))
sketch7.addConstraint(Sketcher.Constraint("Vertical", 15))
sketch7.addConstraint(Sketcher.Constraint("PointOnObject", 3, 2, -1))
sketch7.addConstraint(Sketcher.Constraint("Parallel", 3, 5))
sketch7.addConstraint(Sketcher.Constraint("Parallel", 12, 14))
sketch7.addConstraint(Sketcher.Constraint("Vertical", 0, 2, 3, 2))
sketch7.addConstraint(Sketcher.Constraint("Vertical", 7, 2, 8, 2))
sketch7.addConstraint(Sketcher.Constraint("Vertical", 6, 2, 10, 2))
sketch7.addConstraint(Sketcher.Constraint("Vertical", 9, 2, 12, 2))
sketch7.addConstraint(Sketcher.Constraint("Vertical", 2, 2, 14, 2))
sketch7.addConstraint(Sketcher.Constraint("Equal", 0, 4))
sketch7.addConstraint(Sketcher.Constraint("Equal", 4, 9))
sketch7.addConstraint(Sketcher.Constraint("Equal", 6, 11))
sketch7.addConstraint(Sketcher.Constraint("Equal", 9, 13))
sketch7.addConstraint(Sketcher.Constraint("Equal", 2, 15))
sketch7.addConstraint(Sketcher.Constraint("DistanceX", 1, 2, 1, 1, Q("1.5 in")))
sketch7.addConstraint(Sketcher.Constraint("DistanceY", 2, 2, 2, 1, Q("1.25 in")))
sketch7.addConstraint(Sketcher.Constraint("DistanceY", 0, 1, 0, 2, Q("0.125 in")))
sketch7.addConstraint(Sketcher.Constraint("DistanceX", 0, 2, -1, 1, Q("7 in")))
sketch7.addConstraint(Sketcher.Constraint("DistanceY", -1, 1, 0, 2, Q("2 in")))
sketch7.addConstraint(Sketcher.Constraint("DistanceY", -1, 1, 8, 2, Q("6 in")))
sketch7.addConstraint(Sketcher.Constraint("DistanceX", 2, 2, 5, 2, Q("0.125 in")))
pad4 = body.newObject("PartDesign::Pad", "Pad003")
pad4.Profile = sketch7
pad4.Length = Q("2.5 in")
pad4.Reversed = True

sketch8 = body.newObject("Sketcher::SketchObject", "Sketch007")
sketch8.AttachmentSupport = (doc.getObject("XY_Plane"), [""])
sketch8.MapMode = "FlatFace"
sketch8.AttachmentOffset = App.Placement(Vector(0, 0, 2 * 25.4), App.Rotation())
sketch8.addGeometry(Part.Circle(Vector(-190.5, 31.75, 0), Vector(0, 0, 1), 1.55), False)
sketch8.addConstraint(Sketcher.Constraint("Diameter", 0, 3.1))
sketch8.addConstraint(Sketcher.Constraint("DistanceX", 0, 3, -1, 1, Q("7.5 in")))
sketch8.addConstraint(Sketcher.Constraint("DistanceY", -1, 1, 0, 3, Q("1.25 in")))
pocket4 = body.newObject("PartDesign::Pocket", "Pocket003")
pocket4.Profile = sketch8
pocket4.Length = Q("0.125 in")

sketch9 = body.newObject("Sketcher::SketchObject", "Sketch008")
sketch9.AttachmentSupport = (doc.getObject("YZ_Plane"), [""])
sketch9.MapMode = "FlatFace"
sketch9.addGeometry(Part.LineSegment(Vector(63.5, 3.175, 0), Vector(63.5, 200.025, 0)), False)
sketch9.addGeometry(Part.LineSegment(Vector(63.5, 200.025, 0), Vector(60.325, 200.025, 0)), False)
sketch9.addGeometry(Part.LineSegment(Vector(60.325, 200.025, 0), Vector(60.325, 3.175, 0)), False)
sketch9.addGeometry(Part.LineSegment(Vector(60.325, 3.175, 0), Vector(63.5, 3.175, 0)), False)
sketch9.addConstraint(Sketcher.Constraint("Coincident", 0, 2, 1, 1))
sketch9.addConstraint(Sketcher.Constraint("Coincident", 1, 2, 2, 1))
sketch9.addConstraint(Sketcher.Constraint("Coincident", 2, 2, 3, 1))
sketch9.addConstraint(Sketcher.Constraint("Coincident", 3, 2, 0, 1))
sketch9.addConstraint(Sketcher.Constraint("Vertical", 0))
sketch9.addConstraint(Sketcher.Constraint("Horizontal", 1))
sketch9.addConstraint(Sketcher.Constraint("Vertical", 2))
sketch9.addConstraint(Sketcher.Constraint("Horizontal", 3))
sketch9.addConstraint(Sketcher.Constraint("DistanceX", 1, 2, 1, 1, Q("0.125 in")))
sketch9.addConstraint(Sketcher.Constraint("DistanceY", -1, 1, 2, 2, Q("0.125 in")))
sketch9.addConstraint(Sketcher.Constraint("DistanceY", 0, 1, 0, 2, Q("7.75 in")))
sketch9.addConstraint(Sketcher.Constraint("DistanceX", -1, 1, 0, 2, Q("2.5 in")))
pocket5 = body.newObject("PartDesign::Pocket", "Pocket004")
pocket5.Profile = sketch9
pocket5.Length = Q("0.125 in")

sketch10 = body.newObject("Sketcher::SketchObject", "Sketch009")
sketch10.AttachmentSupport = (doc.getObject("XZ_Plane"), [""])
sketch10.MapMode = "FlatFace"
sketch10.AttachmentOffset = App.Placement(Vector(0, 0, -2.375 * 25.4), App.Rotation())
sketch10.addGeometry(Part.LineSegment(Vector(0, 201.6125, 0), Vector(0, 1.5875, 0)), False)
sketch10.addGeometry(Part.LineSegment(Vector(0, 1.5875, 0), Vector(-177.8, 1.5875, 0)), False)
sketch10.addGeometry(Part.LineSegment(Vector(-177.8, 1.5875, 0), Vector(-214.3125, 19.8437, 0)), False)
sketch10.addGeometry(Part.LineSegment(Vector(-214.3125, 19.8437, 0), Vector(-214.3125, 49.2125, 0)), False)
sketch10.addGeometry(Part.LineSegment(Vector(-214.3125, 49.2125, 0), Vector(-150.8125, 49.2125, 0)), False)
sketch10.addGeometry(Part.LineSegment(Vector(-150.8125, 49.2125, 0), Vector(-150.8125, 153.9875, 0)), False)
sketch10.addGeometry(Part.LineSegment(Vector(-150.8125, 153.9875, 0), Vector(-214.3125, 153.9875, 0)), False)
sketch10.addGeometry(Part.LineSegment(Vector(-214.3125, 153.9875, 0), Vector(-214.3125, 183.3562, 0)), False)
sketch10.addGeometry(Part.LineSegment(Vector(-214.3125, 183.3562, 0), Vector(-177.8, 201.6125, 0)), False)
sketch10.addGeometry(Part.LineSegment(Vector(-177.8, 201.6125, 0), Vector(0, 201.6125, 0)), False)
sketch10.addConstraint(Sketcher.Constraint("Coincident", 0, 2, 1, 1))
sketch10.addConstraint(Sketcher.Constraint("Coincident", 1, 2, 2, 1))
sketch10.addConstraint(Sketcher.Constraint("Coincident", 2, 2, 3, 1))
sketch10.addConstraint(Sketcher.Constraint("Coincident", 3, 2, 4, 1))
sketch10.addConstraint(Sketcher.Constraint("Coincident", 4, 2, 5, 1))
sketch10.addConstraint(Sketcher.Constraint("Coincident", 5, 2, 6, 1))
sketch10.addConstraint(Sketcher.Constraint("Coincident", 6, 2, 7, 1))
sketch10.addConstraint(Sketcher.Constraint("Coincident", 7, 2, 8, 1))
sketch10.addConstraint(Sketcher.Constraint("Coincident", 8, 2, 9, 1))
sketch10.addConstraint(Sketcher.Constraint("Coincident", 9, 2, 0, 1))
sketch10.addConstraint(Sketcher.Constraint("Vertical", 0))
sketch10.addConstraint(Sketcher.Constraint("Horizontal", 1))
sketch10.addConstraint(Sketcher.Constraint("Vertical", 3))
sketch10.addConstraint(Sketcher.Constraint("Horizontal", 4))
sketch10.addConstraint(Sketcher.Constraint("Vertical", 5))
sketch10.addConstraint(Sketcher.Constraint("Horizontal", 6))
sketch10.addConstraint(Sketcher.Constraint("Vertical", 7))
sketch10.addConstraint(Sketcher.Constraint("Horizontal", 9))
sketch10.addConstraint(Sketcher.Constraint("PointOnObject", 0, 2, -2))
sketch10.addConstraint(Sketcher.Constraint("Vertical", 3, 2, 6, 2))
sketch10.addConstraint(Sketcher.Constraint("Vertical", 1, 2, 8, 2))
sketch10.addConstraint(Sketcher.Constraint("Equal", 3, 7))
sketch10.addConstraint(Sketcher.Constraint("Equal", 2, 8))
sketch10.addConstraint(Sketcher.Constraint("DistanceX", 1, 2, 1, 1, Q("7 in")))
sketch10.addConstraint(Sketcher.Constraint("DistanceX", 4, 1, 4, 2, Q("2.5 in")))
sketch10.addConstraint(Sketcher.Constraint("DistanceY", -1, 1, 0, 2, Q("0.0625 in")))
sketch10.addConstraint(Sketcher.Constraint("DistanceY", 1, 2, 5, 2, Q("6 in")))
sketch10.addConstraint(Sketcher.Constraint("DistanceY", 0, 2, 0, 1, Q("7.875 in")))
sketch10.addConstraint(Sketcher.Constraint("DistanceY", 3, 1, 3, 2, Q("1.156252 in")))
sketch10.addConstraint(Sketcher.Constraint("DistanceX", 2, 2, -1, 1, Q("8.4375 in")))
pocket6 = body.newObject("PartDesign::Pocket", "Pocket005")
pocket6.Profile = sketch10
pocket6.Length = Q("0.0625 in")

sketch11 = body.newObject("Sketcher::SketchObject", "Sketch010")
sketch11.AttachmentSupport = (doc.getObject("XZ_Plane"), [""])
sketch11.MapMode = "FlatFace"
sketch11.AttachmentOffset = App.Placement(Vector(0, 0, -0.125 * 25.4), App.Rotation())
sketch11.addGeometry(Part.LineSegment(Vector(-64.135, 32.385, 0), Vector(-64.135, 85.217, 0)), False)
sketch11.addGeometry(Part.LineSegment(Vector(-64.135, 85.217, 0), Vector(-23.495, 85.217, 0)), False)
sketch11.addGeometry(Part.LineSegment(Vector(-23.495, 85.217, 0), Vector(-23.495, 32.385, 0)), False)
sketch11.addGeometry(Part.LineSegment(Vector(-23.495, 32.385, 0), Vector(-64.135, 32.385, 0)), False)
sketch11.addGeometry(Part.LineSegment(Vector(-23.495, 117.983, 0), Vector(-64.135, 117.983, 0)), False)
sketch11.addGeometry(Part.LineSegment(Vector(-64.135, 117.983, 0), Vector(-64.135, 170.815, 0)), False)
sketch11.addGeometry(Part.LineSegment(Vector(-64.135, 170.815, 0), Vector(-23.495, 170.815, 0)), False)
sketch11.addGeometry(Part.LineSegment(Vector(-23.495, 170.815, 0), Vector(-23.495, 117.983, 0)), False)
sketch11.addConstraint(Sketcher.Constraint("Coincident", 0, 2, 1, 1))
sketch11.addConstraint(Sketcher.Constraint("Coincident", 1, 2, 2, 1))
sketch11.addConstraint(Sketcher.Constraint("Coincident", 2, 2, 3, 1))
sketch11.addConstraint(Sketcher.Constraint("Coincident", 3, 2, 0, 1))
sketch11.addConstraint(Sketcher.Constraint("Coincident", 4, 2, 5, 1))
sketch11.addConstraint(Sketcher.Constraint("Coincident", 5, 2, 6, 1))
sketch11.addConstraint(Sketcher.Constraint("Coincident", 6, 2, 7, 1))
sketch11.addConstraint(Sketcher.Constraint("Coincident", 7, 2, 4, 1))
sketch11.addConstraint(Sketcher.Constraint("Vertical", 0))
sketch11.addConstraint(Sketcher.Constraint("Horizontal", 1))
sketch11.addConstraint(Sketcher.Constraint("Vertical", 2))
sketch11.addConstraint(Sketcher.Constraint("Horizontal", 3))
sketch11.addConstraint(Sketcher.Constraint("Horizontal", 4))
sketch11.addConstraint(Sketcher.Constraint("Vertical", 5))
sketch11.addConstraint(Sketcher.Constraint("Horizontal", 6))
sketch11.addConstraint(Sketcher.Constraint("Vertical", 7))
sketch11.addConstraint(Sketcher.Constraint("Vertical", 3, 2, 4, 2))
sketch11.addConstraint(Sketcher.Constraint("Vertical", 2, 2, 6, 2))
sketch11.addConstraint(Sketcher.Constraint("Equal", 2, 5))
sketch11.addConstraint(Sketcher.Constraint("DistanceX", 1, 1, 1, 2, Q("1.6 in")))
sketch11.addConstraint(Sketcher.Constraint("DistanceY", 0, 1, 0, 2, Q("2.08 in")))
sketch11.addConstraint(Sketcher.Constraint("DistanceY", 0, 2, 4, 2, Q("1.29 in")))
sketch11.addConstraint(Sketcher.Constraint("DistanceX", 0, 2, -1, 1, Q("2.525 in")))
sketch11.addConstraint(Sketcher.Constraint("DistanceY", -1, 1, 0, 2, Q("3.355 in")))
pad5 = body.newObject("PartDesign::Pad", "Pad004")
pad5.Profile = sketch11
pad5.Length = Q("0.75 in")
pad5.Reversed = True

sketch12 = body.newObject("Sketcher::SketchObject", "Sketch011")
sketch12.AttachmentSupport = (doc.getObject("XY_Plane"), [""])
sketch12.MapMode = "FlatFace"
sketch12.AttachmentOffset = App.Placement(Vector(0, 0, 4 * 25.4), App.Rotation())
sketch12.addGeometry(Part.ArcOfCircle(Part.Circle(Vector(-43.815, 22.225, 0), Vector(0, 0, 1), 18.4785), math.radians(180), math.radians(360)), False)
sketch12.addGeometry(Part.LineSegment(Vector(-62.2935, 22.225, 0), Vector(-25.3365, 22.225, 0)), False)
sketch12.addConstraint(Sketcher.Constraint("Coincident", 0, 1, 1, 1))
sketch12.addConstraint(Sketcher.Constraint("Coincident", 1, 2, 0, 2))
sketch12.addConstraint(Sketcher.Constraint("Horizontal", 1))
sketch12.addConstraint(Sketcher.Constraint("Radius", 0, Q("0.7275 in")))
sketch12.addConstraint(Sketcher.Constraint("DistanceX", 0, 3, -1, 1, Q("1.725 in")))
sketch12.addConstraint(Sketcher.Constraint("DistanceY", -1, 1, 0, 3, Q("0.875 in")))
sketch12.addConstraint(Sketcher.Constraint("DistanceY", -1, 1, 0, 1, Q("0.875 in")))
pocket7 = body.newObject("PartDesign::Pocket", "Pocket006")
pocket7.Profile = sketch12
pocket7.Length = Q("5.5 in")
pocket7.Midplane = True

doc.recompute()
